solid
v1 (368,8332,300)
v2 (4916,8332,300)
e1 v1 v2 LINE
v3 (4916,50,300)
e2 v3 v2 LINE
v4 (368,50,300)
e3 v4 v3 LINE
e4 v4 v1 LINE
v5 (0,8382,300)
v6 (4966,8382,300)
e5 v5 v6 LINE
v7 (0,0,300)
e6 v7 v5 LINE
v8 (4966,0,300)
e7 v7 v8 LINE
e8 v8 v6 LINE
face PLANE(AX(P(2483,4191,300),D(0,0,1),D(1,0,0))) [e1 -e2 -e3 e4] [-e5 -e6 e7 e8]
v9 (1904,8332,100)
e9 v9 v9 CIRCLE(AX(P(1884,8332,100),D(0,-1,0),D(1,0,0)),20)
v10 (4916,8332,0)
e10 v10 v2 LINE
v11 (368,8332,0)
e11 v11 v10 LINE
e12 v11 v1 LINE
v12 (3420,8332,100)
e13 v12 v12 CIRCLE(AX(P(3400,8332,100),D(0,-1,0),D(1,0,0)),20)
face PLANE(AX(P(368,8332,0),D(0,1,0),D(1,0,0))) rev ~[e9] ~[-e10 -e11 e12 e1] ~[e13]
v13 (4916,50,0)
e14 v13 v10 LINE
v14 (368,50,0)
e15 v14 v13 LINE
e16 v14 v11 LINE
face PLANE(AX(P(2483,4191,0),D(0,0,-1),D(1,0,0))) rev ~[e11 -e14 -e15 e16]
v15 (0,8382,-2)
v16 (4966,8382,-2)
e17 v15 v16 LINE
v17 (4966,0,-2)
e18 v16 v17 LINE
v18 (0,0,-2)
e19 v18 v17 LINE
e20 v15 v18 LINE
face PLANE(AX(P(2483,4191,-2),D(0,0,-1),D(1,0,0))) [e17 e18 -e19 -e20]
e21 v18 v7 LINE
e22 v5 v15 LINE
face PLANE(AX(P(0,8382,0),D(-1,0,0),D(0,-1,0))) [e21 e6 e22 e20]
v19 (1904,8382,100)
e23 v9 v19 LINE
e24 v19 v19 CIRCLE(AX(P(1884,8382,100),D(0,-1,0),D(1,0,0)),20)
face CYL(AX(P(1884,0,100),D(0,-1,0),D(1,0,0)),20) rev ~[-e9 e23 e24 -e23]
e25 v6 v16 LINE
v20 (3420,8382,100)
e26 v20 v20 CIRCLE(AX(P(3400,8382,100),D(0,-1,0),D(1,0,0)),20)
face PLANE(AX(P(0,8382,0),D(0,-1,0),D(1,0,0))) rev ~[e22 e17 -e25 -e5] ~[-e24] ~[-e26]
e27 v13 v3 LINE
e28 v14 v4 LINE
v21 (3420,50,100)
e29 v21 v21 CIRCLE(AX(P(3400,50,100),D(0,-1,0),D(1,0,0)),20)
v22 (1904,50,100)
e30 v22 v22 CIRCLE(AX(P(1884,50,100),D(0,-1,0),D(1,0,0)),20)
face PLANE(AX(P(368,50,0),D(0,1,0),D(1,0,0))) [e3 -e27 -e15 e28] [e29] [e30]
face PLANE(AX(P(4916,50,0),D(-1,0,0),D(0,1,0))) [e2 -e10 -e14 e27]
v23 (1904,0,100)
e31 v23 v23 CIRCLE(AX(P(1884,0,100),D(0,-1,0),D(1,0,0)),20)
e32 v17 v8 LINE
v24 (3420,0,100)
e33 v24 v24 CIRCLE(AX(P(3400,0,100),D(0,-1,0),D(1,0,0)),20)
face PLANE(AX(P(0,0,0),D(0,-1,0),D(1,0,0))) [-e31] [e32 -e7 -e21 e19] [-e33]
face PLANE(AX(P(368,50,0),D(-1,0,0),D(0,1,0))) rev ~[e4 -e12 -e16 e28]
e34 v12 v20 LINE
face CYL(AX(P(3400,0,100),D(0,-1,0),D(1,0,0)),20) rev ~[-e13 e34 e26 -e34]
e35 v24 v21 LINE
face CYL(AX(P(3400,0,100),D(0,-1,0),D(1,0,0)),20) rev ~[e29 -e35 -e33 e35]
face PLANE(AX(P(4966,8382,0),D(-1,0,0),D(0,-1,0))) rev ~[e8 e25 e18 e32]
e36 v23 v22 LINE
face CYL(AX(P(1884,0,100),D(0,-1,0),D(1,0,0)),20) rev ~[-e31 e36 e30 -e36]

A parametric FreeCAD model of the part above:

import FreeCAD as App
import Part
import Sketcher
Q = App.Units.Quantity

doc = App.newDocument("Part")
body = doc.addObject("PartDesign::Body", "Body")

# Sketch on XY plane
sketch1 = doc.addObject("Sketcher::SketchObject", "Sketch")
body.addObject(sketch1)
sketch1.AttachmentSupport = (doc.XY_Plane, [""])
sketch1.MapMode = "FlatFace"
sketch1.addGeometry(Part.LineSegment(App.Vector(0, 8382, 0), App.Vector(0, 0, 0)), False)
sketch1.addGeometry(Part.LineSegment(App.Vector(0, 0, 0), App.Vector(4966, 0, 0)), False)
sketch1.addGeometry(Part.LineSegment(App.Vector(4966, 0, 0), App.Vector(4966, 8382, 0)), False)
sketch1.addGeometry(Part.LineSegment(App.Vector(4966, 8382, 0), App.Vector(0, 8382, 0)), False)
sketch1.addGeometry(Part.LineSegment(App.Vector(4916, 50, 0), App.Vector(368, 50, 0)), False)
sketch1.addGeometry(Part.LineSegment(App.Vector(368, 50, 0), App.Vector(368, 8332, 0)), False)
sketch1.addGeometry(Part.LineSegment(App.Vector(368, 8332, 0), App.Vector(4916, 8332, 0)), False)
sketch1.addGeometry(Part.LineSegment(App.Vector(4916, 8332, 0), App.Vector(4916, 50, 0)), False)
sketch1.addConstraint(Sketcher.Constraint("Coincident", 0, 2, 1, 1))
sketch1.addConstraint(Sketcher.Constraint("Coincident", 1, 2, 2, 1))
sketch1.addConstraint(Sketcher.Constraint("Coincident", 2, 2, 3, 1))
sketch1.addConstraint(Sketcher.Constraint("Coincident", 3, 2, 0, 1))
sketch1.addConstraint(Sketcher.Constraint("Coincident", 4, 2, 5, 1))
sketch1.addConstraint(Sketcher.Constraint("Coincident", 5, 2, 6, 1))
sketch1.addConstraint(Sketcher.Constraint("Coincident", 6, 2, 7, 1))
sketch1.addConstraint(Sketcher.Constraint("Coincident", 7, 2, 4, 1))
sketch1.addConstraint(Sketcher.Constraint("Vertical", 0))
sketch1.addConstraint(Sketcher.Constraint("Horizontal", 1))
sketch1.addConstraint(Sketcher.Constraint("Vertical", 2))
sketch1.addConstraint(Sketcher.Constraint("Horizontal", 3))
sketch1.addConstraint(Sketcher.Constraint("Horizontal", 4))
sketch1.addConstraint(Sketcher.Constraint("Vertical", 5))
sketch1.addConstraint(Sketcher.Constraint("Horizontal", 6))
sketch1.addConstraint(Sketcher.Constraint("Vertical", 7))
sketch1.addConstraint(Sketcher.Constraint("Coincident", 0, 2, -1, 1))
sketch1.addConstraint(Sketcher.Constraint("DistanceX", 1, 1, 1, 2, Q("4966 mm")))
sketch1.addConstraint(Sketcher.Constraint("DistanceX", 4, 2, 4, 1, Q("4548 mm")))
sketch1.addConstraint(Sketcher.Constraint("DistanceY", 0, 2, 0, 1, Q("8382 mm")))
sketch1.addConstraint(Sketcher.Constraint("DistanceY", 5, 1, 5, 2, Q("8282 mm")))
sketch1.addConstraint(Sketcher.Constraint("DistanceX", -1, 1, 4, 2, Q("368 mm")))
sketch1.addConstraint(Sketcher.Constraint("DistanceY", -1, 1, 4, 2, Q("50 mm")))
pad1 = doc.addObject("PartDesign::Pad", "Pad")
body.addObject(pad1)
pad1.Profile = sketch1
pad1.Length = 300

# Sketch on XY plane
sketch2 = doc.addObject("Sketcher::SketchObject", "Sketch001")
body.addObject(sketch2)
sketch2.AttachmentSupport = (doc.XY_Plane, [""])
sketch2.MapMode = "FlatFace"
sketch2.addGeometry(Part.LineSegment(App.Vector(0, 0, 0), App.Vector(0, 8382, 0)), False)
sketch2.addGeometry(Part.LineSegment(App.Vector(0, 8382, 0), App.Vector(4966, 8382, 0)), False)
sketch2.addGeometry(Part.LineSegment(App.Vector(4966, 8382, 0), App.Vector(4966, 0, 0)), False)
sketch2.addGeometry(Part.LineSegment(App.Vector(4966, 0, 0), App.Vector(0, 0, 0)), False)
sketch2.addConstraint(Sketcher.Constraint("Coincident", 0, 2, 1, 1))
sketch2.addConstraint(Sketcher.Constraint("Coincident", 1, 2, 2, 1))
sketch2.addConstraint(Sketcher.Constraint("Coincident", 2, 2, 3, 1))
sketch2.addConstraint(Sketcher.Constraint("Coincident", 3, 2, 0, 1))
sketch2.addConstraint(Sketcher.Constraint("Vertical", 0))
sketch2.addConstraint(Sketcher.Constraint("Horizontal", 1))
sketch2.addConstraint(Sketcher.Constraint("Vertical", 2))
sketch2.addConstraint(Sketcher.Constraint("Horizontal", 3))
sketch2.addConstraint(Sketcher.Constraint("Coincident", 3, 2, -1, 1))
sketch2.addConstraint(Sketcher.Constraint("DistanceX", 1, 1, 1, 2, Q("4966 mm")))
sketch2.addConstraint(Sketcher.Constraint("DistanceY", 0, 1, 0, 2, Q("8382 mm")))
pad2 = doc.addObject("PartDesign::Pad", "Pad001")
body.addObject(pad2)
pad2.Profile = sketch2
pad2.Length = 2
pad2.Reversed = True

# Sketch on XZ plane
sketch3 = doc.addObject("Sketcher::SketchObject", "Sketch002")
body.addObject(sketch3)
sketch3.AttachmentSupport = (doc.XZ_Plane, [""])
sketch3.MapMode = "FlatFace"
sketch3.addGeometry(Part.Circle(App.Vector(1884, 100, 0), App.Vector(0, 0, 1), 20), False)
sketch3.addGeometry(Part.Circle(App.Vector(3400, 100, 0), App.Vector(0, 0, 1), 20), False)
sketch3.addConstraint(Sketcher.Constraint("Equal", 0, 1))
sketch3.addConstraint(Sketcher.Constraint("Horizontal", 0, 3, 1, 3))
sketch3.addConstraint(Sketcher.Constraint("Diameter", 0, Q("40 mm")))
sketch3.addConstraint(Sketcher.Constraint("DistanceX", -1, 1, 0, 3, Q("1884 mm")))
sketch3.addConstraint(Sketcher.Constraint("DistanceY", -1, 1, 0, 3, Q("100 mm")))
sketch3.addConstraint(Sketcher.Constraint("DistanceX", -1, 1, 1, 3, Q("3400 mm")))
pocket1 = doc.addObject("PartDesign::Pocket", "Pocket")
body.addObject(pocket1)
pocket1.Profile = sketch3
pocket1.Type = "ThroughAll"

doc.recompute()
